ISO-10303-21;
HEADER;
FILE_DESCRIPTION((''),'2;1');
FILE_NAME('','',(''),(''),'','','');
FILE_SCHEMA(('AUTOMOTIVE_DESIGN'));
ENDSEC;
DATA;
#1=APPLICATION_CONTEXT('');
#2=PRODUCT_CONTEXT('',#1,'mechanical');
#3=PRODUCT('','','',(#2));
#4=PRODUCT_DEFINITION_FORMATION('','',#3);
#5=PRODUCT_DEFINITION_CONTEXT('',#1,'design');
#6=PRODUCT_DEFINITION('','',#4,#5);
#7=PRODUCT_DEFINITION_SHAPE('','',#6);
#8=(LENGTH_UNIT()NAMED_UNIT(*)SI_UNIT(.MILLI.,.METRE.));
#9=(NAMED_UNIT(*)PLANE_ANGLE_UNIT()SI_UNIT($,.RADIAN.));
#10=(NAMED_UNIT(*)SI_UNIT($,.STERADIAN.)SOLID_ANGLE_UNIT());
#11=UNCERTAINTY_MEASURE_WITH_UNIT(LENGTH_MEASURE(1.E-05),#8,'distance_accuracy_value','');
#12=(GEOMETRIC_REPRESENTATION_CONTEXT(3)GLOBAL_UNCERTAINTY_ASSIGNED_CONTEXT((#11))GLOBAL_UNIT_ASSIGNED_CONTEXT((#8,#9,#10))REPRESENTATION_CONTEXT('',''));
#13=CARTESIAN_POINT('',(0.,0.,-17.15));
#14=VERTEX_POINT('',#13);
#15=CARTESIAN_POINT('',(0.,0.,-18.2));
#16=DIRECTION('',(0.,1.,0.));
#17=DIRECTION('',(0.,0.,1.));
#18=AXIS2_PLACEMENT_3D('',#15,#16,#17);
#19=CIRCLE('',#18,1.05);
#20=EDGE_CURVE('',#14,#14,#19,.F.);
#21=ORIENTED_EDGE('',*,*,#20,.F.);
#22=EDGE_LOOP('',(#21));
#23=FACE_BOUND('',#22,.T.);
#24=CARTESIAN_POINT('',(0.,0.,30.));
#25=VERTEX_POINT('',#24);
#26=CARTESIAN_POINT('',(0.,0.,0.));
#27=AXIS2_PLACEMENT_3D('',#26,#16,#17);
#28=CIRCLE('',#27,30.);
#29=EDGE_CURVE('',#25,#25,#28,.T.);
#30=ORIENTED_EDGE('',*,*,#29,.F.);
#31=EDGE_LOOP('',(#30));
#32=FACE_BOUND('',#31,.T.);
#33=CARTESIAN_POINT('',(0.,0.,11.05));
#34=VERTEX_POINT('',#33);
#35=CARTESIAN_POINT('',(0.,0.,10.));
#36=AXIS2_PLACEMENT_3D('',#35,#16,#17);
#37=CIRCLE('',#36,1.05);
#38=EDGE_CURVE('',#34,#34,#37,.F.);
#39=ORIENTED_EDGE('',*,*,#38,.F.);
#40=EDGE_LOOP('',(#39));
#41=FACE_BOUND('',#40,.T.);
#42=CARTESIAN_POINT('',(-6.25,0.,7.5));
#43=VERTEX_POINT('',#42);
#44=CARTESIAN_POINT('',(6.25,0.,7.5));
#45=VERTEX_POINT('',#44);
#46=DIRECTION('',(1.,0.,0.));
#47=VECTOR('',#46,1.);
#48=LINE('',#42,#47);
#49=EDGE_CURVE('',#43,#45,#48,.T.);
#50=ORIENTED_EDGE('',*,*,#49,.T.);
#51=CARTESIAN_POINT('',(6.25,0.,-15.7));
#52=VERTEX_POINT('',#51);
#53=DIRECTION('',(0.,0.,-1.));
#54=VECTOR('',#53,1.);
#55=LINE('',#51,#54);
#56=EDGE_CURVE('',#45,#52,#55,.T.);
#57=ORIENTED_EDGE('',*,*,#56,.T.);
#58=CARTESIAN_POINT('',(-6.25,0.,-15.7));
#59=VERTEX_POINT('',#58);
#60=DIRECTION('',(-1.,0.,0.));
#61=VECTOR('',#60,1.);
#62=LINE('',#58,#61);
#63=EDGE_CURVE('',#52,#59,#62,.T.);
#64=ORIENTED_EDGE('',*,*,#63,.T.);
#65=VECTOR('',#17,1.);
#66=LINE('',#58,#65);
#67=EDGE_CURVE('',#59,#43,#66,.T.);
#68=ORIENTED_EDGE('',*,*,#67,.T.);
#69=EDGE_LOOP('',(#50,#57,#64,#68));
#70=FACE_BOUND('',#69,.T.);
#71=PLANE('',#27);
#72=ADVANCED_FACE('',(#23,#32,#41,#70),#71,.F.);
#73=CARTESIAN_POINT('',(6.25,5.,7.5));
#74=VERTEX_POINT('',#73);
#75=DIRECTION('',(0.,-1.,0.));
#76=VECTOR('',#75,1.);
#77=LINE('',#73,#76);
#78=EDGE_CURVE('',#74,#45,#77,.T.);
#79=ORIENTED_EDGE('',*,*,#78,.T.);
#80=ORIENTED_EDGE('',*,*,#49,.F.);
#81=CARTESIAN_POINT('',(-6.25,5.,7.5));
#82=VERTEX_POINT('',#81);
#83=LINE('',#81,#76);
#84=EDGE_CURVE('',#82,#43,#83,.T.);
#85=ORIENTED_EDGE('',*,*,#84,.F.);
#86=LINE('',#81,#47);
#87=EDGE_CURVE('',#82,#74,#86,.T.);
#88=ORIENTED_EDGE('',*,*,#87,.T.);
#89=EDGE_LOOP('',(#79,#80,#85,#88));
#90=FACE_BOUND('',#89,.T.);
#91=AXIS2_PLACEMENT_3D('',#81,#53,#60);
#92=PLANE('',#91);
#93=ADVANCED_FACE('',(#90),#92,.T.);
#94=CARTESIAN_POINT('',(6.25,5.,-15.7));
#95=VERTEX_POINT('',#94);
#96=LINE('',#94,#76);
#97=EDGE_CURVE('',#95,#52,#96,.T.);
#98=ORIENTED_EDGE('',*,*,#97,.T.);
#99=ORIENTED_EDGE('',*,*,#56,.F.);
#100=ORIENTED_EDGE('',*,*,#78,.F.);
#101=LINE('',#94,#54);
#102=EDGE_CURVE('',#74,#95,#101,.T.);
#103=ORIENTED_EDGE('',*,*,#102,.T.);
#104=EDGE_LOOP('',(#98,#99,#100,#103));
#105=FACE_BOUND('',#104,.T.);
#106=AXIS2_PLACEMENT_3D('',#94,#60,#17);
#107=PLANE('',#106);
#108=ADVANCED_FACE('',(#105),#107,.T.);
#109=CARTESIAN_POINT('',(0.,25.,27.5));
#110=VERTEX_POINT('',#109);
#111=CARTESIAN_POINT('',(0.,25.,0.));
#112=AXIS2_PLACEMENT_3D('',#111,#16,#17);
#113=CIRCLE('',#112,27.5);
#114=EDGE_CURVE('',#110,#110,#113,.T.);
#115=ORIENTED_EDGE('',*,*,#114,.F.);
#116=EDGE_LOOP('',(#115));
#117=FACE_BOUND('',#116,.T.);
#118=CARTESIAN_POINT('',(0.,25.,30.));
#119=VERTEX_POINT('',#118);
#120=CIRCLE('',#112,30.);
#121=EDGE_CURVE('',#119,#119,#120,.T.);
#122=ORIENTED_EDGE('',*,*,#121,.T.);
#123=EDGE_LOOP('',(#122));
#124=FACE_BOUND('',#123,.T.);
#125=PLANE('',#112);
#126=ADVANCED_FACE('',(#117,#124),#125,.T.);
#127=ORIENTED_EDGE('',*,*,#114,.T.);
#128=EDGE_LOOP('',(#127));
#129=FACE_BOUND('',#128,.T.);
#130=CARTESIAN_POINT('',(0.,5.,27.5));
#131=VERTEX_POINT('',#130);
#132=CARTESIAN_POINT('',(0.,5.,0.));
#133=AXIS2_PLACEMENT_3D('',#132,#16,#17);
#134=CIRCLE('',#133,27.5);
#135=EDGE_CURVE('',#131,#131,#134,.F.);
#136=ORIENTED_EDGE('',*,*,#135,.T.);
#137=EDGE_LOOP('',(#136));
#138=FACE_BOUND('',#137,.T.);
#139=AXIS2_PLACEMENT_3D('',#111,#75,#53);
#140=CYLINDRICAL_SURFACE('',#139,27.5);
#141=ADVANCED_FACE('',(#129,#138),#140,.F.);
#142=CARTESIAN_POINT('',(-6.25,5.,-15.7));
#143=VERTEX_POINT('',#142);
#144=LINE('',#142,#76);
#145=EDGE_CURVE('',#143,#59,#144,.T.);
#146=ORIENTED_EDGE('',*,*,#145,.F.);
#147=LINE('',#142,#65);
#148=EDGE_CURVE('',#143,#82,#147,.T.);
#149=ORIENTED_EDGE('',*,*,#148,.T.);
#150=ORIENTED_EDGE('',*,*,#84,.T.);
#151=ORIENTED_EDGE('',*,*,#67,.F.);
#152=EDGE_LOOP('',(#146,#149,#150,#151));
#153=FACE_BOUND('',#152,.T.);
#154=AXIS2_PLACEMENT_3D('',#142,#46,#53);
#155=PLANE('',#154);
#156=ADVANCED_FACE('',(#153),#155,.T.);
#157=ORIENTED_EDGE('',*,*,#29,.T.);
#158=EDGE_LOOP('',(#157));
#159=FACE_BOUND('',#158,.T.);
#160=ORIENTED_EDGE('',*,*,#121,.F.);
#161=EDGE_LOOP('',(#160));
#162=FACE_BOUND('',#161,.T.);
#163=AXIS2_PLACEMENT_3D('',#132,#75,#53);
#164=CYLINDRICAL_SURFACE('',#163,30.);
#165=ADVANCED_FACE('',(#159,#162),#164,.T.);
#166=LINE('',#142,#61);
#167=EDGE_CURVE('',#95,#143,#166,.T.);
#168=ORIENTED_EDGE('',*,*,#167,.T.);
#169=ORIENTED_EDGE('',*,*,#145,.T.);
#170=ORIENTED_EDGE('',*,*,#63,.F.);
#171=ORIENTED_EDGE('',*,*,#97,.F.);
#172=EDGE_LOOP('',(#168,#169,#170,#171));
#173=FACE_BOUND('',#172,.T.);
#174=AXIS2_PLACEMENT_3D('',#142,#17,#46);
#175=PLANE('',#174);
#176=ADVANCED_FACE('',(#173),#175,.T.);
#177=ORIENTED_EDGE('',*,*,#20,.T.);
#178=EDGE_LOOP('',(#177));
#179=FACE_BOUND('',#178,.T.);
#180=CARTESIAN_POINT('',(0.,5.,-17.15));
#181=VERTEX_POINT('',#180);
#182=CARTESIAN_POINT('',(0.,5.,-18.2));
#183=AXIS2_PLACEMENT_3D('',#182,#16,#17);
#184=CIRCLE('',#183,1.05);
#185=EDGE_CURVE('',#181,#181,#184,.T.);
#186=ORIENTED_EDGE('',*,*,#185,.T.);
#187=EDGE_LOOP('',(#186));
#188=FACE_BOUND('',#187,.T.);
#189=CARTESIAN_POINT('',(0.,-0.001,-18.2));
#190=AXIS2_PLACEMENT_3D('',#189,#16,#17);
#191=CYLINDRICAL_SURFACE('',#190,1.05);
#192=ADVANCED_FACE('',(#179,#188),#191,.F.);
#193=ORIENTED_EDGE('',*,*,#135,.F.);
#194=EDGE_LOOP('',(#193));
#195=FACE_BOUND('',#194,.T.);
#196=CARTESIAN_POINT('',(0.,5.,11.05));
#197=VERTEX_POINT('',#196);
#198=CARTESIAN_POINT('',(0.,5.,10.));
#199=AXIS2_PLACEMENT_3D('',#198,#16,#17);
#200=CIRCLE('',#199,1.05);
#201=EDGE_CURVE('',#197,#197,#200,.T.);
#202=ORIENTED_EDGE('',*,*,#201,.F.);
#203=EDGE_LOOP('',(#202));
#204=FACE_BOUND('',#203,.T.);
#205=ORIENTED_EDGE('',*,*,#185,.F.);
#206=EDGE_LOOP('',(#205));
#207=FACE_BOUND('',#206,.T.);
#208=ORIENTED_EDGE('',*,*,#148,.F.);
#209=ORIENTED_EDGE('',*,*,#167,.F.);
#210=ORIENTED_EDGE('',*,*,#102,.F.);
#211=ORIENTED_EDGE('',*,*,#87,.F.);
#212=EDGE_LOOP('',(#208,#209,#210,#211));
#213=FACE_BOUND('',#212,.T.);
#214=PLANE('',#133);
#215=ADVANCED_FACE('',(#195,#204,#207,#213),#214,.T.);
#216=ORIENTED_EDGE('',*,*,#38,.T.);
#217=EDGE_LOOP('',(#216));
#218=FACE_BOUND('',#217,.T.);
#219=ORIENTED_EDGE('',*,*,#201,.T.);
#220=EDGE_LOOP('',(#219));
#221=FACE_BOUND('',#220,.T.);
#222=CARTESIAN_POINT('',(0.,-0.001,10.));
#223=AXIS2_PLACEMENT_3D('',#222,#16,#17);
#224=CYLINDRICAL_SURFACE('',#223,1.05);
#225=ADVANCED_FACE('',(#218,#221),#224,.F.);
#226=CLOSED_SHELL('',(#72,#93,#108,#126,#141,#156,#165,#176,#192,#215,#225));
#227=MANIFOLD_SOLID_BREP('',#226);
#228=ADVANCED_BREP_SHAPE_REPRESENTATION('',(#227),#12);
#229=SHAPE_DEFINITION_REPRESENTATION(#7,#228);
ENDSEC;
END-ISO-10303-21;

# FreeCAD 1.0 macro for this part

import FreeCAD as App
import Part
import Sketcher
from FreeCAD import Vector

doc = App.newDocument("Part")
body = doc.addObject("PartDesign::Body", "Body")

# Sketch on XZ plane
sketch1 = body.newObject("Sketcher::SketchObject", "Sketch")
sketch1.AttachmentSupport = (doc.getObject("XZ_Plane"), [""])
sketch1.MapMode = "FlatFace"
sketch1.addGeometry([
    Part.Circle(Vector(0, 0, 0), Vector(0, 0, 1), 30),  # 0
    Part.LineSegment(Vector(6, 8, 0), Vector(-6, 8, 0)),  # 1
    Part.LineSegment(Vector(-6, 8, 0), Vector(-6, -16, 0)),  # 2
    Part.LineSegment(Vector(-6, -16, 0), Vector(6, -16, 0)),  # 3
    Part.LineSegment(Vector(6, -16, 0), Vector(6, 8, 0)),  # 4
], False)
sketch1.addConstraint([
    Sketcher.Constraint("Coincident", 1, 2, 2, 1),
    Sketcher.Constraint("Coincident", 2, 2, 3, 1),
    Sketcher.Constraint("Coincident", 3, 2, 4, 1),
    Sketcher.Constraint("Coincident", 4, 2, 1, 1),
    Sketcher.Constraint("Horizontal", 1),
    Sketcher.Constraint("Vertical", 2),
    Sketcher.Constraint("Horizontal", 3),
    Sketcher.Constraint("Vertical", 4),
    Sketcher.Constraint("Coincident", 0, 3, -1, 1),
    Sketcher.Constraint("Diameter", 0, 60.0),
    Sketcher.Constraint("DistanceX", 1, 2, 1, 1, 12.5),
    Sketcher.Constraint("DistanceY", 2, 2, 2, 1, 23.2),
    Sketcher.Constraint("DistanceY", -1, 1, 1, 2, 7.5),
    Sketcher.Constraint("DistanceX", 1, 2, -1, 1, 6.25),
])
pad1 = body.newObject("PartDesign::Pad", "Pad")
pad1.Profile = sketch1
pad1.Length = 5
pad1.Reversed = True

# Sketch on XZ plane
sketch2 = body.newObject("Sketcher::SketchObject", "Sketch001")
sketch2.AttachmentSupport = (doc.getObject("XZ_Plane"), [""])
sketch2.MapMode = "FlatFace"
sketch2.AttachmentOffset = App.Placement(Vector(0, 0, -5), App.Rotation())
sketch2.addGeometry([
    Part.Circle(Vector(0, 0, 0), Vector(0, 0, 1), 30),
    Part.Circle(Vector(0, 0, 0), Vector(0, 0, 1), 28),
], False)
sketch2.addConstraint([
    Sketcher.Constraint("Coincident", 0, 3, -1, 1),
    Sketcher.Constraint("Coincident", 1, 3, -1, 1),
    Sketcher.Constraint("Diameter", 0, 60.0),
    Sketcher.Constraint("Diameter", 1, 55.0),
])
pad2 = body.newObject("PartDesign::Pad", "Pad001")
pad2.Profile = sketch2
pad2.Length = 20
pad2.Reversed = True

# Sketch on XZ plane
sketch3 = body.newObject("Sketcher::SketchObject", "Sketch002")
sketch3.AttachmentSupport = (doc.getObject("XZ_Plane"), [""])
sketch3.MapMode = "FlatFace"
sketch3.AttachmentOffset = App.Placement(Vector(0, 0, -5), App.Rotation())
sketch3.addGeometry(Part.Circle(Vector(0, -18.2, 0), Vector(0, 0, 1), 1.1), False)
sketch3.addConstraint([
    Sketcher.Constraint("PointOnObject", 0, 3, -2),
    Sketcher.Constraint("Diameter", 0, 2.1),
    Sketcher.Constraint("DistanceY", 0, 3, -1, 1, 18.2),
])
pocket1 = body.newObject("PartDesign::Pocket", "Pocket")
pocket1.Profile = sketch3
pocket1.Type = "UpToFirst"
pocket1.Reversed = True

# Sketch on XZ plane
sketch4 = body.newObject("Sketcher::SketchObject", "Sketch003")
sketch4.AttachmentSupport = (doc.getObject("XZ_Plane"), [""])
sketch4.MapMode = "FlatFace"
sketch4.AttachmentOffset = App.Placement(Vector(0, 0, -5), App.Rotation())
sketch4.addGeometry(Part.Circle(Vector(0, 10, 0), Vector(0, 0, 1), 1.1), False)
sketch4.addConstraint([
    Sketcher.Constraint("PointOnObject", 0, 3, -2),
    Sketcher.Constraint("Diameter", 0, 2.1),
    Sketcher.Constraint("DistanceY", -1, 1, 0, 3, 10.0),
])
pocket2 = body.newObject("PartDesign::Pocket", "Pocket001")
pocket2.Profile = sketch4
pocket2.Type = "UpToFirst"
pocket2.Reversed = True

doc.recompute()
